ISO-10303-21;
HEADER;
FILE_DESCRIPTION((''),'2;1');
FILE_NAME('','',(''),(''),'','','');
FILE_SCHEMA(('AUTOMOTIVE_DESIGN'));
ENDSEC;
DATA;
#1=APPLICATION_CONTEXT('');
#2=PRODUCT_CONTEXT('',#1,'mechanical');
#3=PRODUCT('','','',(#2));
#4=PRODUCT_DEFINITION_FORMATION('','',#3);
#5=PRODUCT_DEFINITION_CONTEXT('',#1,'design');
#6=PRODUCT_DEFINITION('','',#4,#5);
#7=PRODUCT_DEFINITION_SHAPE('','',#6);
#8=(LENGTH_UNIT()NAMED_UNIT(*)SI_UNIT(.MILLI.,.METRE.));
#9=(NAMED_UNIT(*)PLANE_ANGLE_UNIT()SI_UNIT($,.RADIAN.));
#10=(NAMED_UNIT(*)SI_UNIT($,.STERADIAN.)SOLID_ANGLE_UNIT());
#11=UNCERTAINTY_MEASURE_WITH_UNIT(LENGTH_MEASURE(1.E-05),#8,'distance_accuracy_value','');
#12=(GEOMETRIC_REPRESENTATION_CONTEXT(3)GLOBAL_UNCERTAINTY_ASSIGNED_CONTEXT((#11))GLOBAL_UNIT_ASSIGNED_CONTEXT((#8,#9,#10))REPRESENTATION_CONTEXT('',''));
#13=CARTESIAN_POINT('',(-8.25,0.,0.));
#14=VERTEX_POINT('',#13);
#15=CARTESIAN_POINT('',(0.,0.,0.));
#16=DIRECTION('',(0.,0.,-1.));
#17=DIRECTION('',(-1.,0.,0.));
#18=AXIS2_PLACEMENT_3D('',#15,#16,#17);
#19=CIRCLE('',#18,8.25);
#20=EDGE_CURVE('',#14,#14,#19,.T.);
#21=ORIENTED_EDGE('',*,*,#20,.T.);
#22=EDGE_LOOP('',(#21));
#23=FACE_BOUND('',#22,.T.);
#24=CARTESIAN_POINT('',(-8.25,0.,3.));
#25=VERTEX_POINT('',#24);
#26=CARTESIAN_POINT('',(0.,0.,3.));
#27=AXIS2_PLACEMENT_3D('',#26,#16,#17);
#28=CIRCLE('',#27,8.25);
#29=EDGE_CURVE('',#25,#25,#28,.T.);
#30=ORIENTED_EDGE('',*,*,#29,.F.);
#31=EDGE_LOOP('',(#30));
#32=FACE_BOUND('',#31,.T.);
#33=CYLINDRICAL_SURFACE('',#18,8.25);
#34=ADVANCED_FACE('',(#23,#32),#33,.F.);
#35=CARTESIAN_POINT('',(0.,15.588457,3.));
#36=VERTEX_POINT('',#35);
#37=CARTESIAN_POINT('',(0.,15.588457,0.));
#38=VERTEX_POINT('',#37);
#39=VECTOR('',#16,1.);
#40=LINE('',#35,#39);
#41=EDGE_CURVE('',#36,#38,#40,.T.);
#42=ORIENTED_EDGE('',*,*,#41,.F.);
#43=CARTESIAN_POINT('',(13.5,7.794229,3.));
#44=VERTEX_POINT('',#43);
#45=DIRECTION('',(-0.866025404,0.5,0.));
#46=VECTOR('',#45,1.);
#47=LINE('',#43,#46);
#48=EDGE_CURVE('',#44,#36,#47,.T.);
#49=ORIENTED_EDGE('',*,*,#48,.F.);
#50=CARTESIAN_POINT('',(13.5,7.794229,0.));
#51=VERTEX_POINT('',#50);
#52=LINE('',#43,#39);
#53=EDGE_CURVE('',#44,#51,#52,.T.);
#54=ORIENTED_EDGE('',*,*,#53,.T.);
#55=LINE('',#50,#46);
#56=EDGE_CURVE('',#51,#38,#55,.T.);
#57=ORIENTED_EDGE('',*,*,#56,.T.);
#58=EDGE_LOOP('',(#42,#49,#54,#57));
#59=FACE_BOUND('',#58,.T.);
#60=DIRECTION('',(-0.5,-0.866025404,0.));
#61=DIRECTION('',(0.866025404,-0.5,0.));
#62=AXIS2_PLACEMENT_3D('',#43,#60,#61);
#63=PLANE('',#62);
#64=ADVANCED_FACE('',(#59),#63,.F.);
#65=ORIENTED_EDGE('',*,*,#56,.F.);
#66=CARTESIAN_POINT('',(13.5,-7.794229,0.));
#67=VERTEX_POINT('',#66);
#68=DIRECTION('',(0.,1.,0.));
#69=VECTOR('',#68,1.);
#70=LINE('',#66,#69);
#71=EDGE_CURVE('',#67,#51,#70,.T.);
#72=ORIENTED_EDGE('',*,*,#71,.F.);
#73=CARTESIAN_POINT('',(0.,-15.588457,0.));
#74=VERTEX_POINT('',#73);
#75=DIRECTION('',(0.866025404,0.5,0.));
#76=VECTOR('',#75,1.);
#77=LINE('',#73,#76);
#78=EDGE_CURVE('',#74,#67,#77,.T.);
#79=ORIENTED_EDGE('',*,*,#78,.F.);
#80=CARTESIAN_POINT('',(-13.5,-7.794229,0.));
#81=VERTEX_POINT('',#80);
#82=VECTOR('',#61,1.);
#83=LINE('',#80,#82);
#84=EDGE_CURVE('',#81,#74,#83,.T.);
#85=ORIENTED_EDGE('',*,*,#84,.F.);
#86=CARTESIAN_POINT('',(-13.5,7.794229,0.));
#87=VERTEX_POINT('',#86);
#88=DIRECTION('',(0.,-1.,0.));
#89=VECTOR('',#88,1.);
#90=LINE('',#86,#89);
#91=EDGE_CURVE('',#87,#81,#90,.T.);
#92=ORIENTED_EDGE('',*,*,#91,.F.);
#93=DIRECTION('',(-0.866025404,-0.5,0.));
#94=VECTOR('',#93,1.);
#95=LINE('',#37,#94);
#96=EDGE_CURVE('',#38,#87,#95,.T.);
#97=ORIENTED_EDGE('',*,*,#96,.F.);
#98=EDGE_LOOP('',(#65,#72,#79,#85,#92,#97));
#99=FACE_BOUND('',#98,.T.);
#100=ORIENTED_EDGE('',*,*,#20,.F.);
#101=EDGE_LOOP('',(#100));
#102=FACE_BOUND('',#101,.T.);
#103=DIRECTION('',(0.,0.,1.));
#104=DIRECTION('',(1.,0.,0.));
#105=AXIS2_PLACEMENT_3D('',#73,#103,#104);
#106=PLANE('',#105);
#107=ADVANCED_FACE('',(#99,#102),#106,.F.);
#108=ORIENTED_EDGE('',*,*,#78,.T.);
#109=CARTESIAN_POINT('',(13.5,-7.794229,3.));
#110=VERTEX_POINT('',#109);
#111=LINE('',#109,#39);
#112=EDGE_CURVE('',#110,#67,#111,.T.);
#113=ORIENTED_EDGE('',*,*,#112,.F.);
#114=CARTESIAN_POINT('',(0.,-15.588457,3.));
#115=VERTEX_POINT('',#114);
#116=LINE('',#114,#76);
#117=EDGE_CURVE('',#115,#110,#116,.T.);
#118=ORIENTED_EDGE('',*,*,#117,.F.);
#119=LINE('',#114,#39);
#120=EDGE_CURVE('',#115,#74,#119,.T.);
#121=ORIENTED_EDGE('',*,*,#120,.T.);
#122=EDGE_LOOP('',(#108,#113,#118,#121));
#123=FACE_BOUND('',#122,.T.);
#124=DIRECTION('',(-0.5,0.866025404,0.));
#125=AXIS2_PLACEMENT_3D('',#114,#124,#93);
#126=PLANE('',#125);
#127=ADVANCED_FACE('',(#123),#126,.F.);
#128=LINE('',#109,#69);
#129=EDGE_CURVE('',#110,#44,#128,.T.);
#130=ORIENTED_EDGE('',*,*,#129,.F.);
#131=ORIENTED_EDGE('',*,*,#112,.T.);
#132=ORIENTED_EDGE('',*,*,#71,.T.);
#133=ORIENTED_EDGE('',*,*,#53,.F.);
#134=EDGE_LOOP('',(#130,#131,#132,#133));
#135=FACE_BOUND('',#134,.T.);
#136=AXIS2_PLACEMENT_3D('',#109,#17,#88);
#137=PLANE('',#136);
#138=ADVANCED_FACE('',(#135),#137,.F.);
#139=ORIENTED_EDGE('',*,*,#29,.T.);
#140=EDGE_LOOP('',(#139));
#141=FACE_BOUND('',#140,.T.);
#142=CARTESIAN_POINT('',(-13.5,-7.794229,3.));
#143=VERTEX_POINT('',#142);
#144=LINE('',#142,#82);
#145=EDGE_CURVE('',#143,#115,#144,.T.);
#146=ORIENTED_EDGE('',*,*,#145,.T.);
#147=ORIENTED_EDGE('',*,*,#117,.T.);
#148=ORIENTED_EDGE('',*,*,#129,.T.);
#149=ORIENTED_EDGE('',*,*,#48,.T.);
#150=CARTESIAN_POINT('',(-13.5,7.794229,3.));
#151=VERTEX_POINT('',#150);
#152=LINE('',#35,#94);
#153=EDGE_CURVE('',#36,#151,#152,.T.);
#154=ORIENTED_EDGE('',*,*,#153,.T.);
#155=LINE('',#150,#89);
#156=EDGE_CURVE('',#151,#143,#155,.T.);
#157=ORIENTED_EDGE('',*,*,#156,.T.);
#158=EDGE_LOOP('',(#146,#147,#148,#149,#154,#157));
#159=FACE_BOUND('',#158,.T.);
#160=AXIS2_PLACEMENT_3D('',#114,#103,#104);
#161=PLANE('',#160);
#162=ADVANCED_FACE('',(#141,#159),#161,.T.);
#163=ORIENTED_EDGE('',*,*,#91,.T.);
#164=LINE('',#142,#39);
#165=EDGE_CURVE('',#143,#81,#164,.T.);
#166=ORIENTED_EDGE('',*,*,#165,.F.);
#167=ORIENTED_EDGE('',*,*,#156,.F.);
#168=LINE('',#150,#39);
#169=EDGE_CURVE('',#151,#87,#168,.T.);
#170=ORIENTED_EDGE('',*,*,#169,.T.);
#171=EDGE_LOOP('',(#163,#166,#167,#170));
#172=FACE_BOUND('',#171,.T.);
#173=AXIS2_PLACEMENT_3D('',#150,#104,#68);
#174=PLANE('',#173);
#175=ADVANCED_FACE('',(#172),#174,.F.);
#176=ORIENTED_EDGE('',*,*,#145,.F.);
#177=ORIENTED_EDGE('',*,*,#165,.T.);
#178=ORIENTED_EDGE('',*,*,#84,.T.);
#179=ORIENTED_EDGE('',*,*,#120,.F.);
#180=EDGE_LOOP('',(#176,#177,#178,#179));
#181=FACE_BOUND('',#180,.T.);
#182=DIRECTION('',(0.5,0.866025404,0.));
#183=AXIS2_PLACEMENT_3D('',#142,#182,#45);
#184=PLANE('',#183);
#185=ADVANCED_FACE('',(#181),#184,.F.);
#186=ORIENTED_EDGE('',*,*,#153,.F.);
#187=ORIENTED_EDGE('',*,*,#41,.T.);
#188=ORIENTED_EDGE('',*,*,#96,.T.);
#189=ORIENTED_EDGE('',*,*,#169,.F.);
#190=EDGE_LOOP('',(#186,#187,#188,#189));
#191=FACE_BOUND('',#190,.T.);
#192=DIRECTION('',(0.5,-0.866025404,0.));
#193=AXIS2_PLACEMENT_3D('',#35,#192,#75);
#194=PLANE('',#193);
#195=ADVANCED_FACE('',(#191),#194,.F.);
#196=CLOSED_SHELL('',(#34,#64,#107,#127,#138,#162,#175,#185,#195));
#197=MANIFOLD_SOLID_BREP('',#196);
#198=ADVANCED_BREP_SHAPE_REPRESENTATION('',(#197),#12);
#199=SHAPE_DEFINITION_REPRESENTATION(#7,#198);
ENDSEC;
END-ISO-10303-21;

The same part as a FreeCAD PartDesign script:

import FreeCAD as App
import Part
import Sketcher

V = App.Vector
Q = App.Units.Quantity


def add_polygon(sketch, points):
    """Adds a closed chain of lines whose ends are joined by coincident constraints."""
    first, n = sketch.GeometryCount, len(points)
    for a, b in zip(points, points[1:] + points[:1]):
        sketch.addGeometry(Part.LineSegment(App.Vector(*a, 0), App.Vector(*b, 0)), False)
    for i in range(n):
        sketch.addConstraint(Sketcher.Constraint("Coincident", first + i, 2, first + (i + 1) % n, 1))

doc = App.newDocument("Part")
body = doc.addObject("PartDesign::Body", "Body")

# Sketch on XY plane
sketch1 = body.newObject("Sketcher::SketchObject", "Sketch")
sketch1.AttachmentSupport = (doc.getObject("XY_Plane"), [""])
sketch1.MapMode = "FlatFace"
add_polygon(sketch1, [(0, -15.588457), (13.5, -7.794229), (13.5, 7.794229), (0, 15.588457), (-13.5, 7.794229), (-13.5, -7.794229)])  # lines 0-5
sketch1.addConstraint([
    Sketcher.Constraint("Vertical", 1),
    Sketcher.Constraint("Vertical", 4),
    Sketcher.Constraint("Symmetric", 0, 2, 3, 2, -1, 1),
    Sketcher.Constraint("Symmetric", 2, 2, 5, 2, -1, 1),
    Sketcher.Constraint("PointOnObject", 2, 2, -2),
    Sketcher.Constraint("Parallel", 2, 5),
    Sketcher.Constraint("Horizontal", 1, 2, 3, 2),
    Sketcher.Constraint("Angle", 0, Q("30 deg")),
    Sketcher.Constraint("DistanceX", 3, 2, 1, 2, 27.0),
    Sketcher.Constraint("DistanceY", 1, 1, 1, 2, 15.588457),
])
pad1 = body.newObject("PartDesign::Pad", "Pad")
pad1.Profile = sketch1
pad1.Length = 3

# Sketch on XY plane
sketch2 = body.newObject("Sketcher::SketchObject", "Sketch001")
sketch2.AttachmentSupport = (doc.getObject("XY_Plane"), [""])
sketch2.MapMode = "FlatFace"
sketch2.addGeometry(Part.Circle(V(0, 0, 0), V(0, 0, 1), 8.25), False)
sketch2.addConstraint([
    Sketcher.Constraint("Coincident", 0, 3, -1, 1),
    Sketcher.Constraint("Diameter", 0, 16.5),
])
doc.recompute()
hole = body.newObject("PartDesign::Hole", "Hole")
hole.Profile = sketch2
hole.ThreadType = "None"
hole.Diameter = 16.5
hole.DepthType = "ThroughAll"
hole.Reversed = True

doc.recompute()
